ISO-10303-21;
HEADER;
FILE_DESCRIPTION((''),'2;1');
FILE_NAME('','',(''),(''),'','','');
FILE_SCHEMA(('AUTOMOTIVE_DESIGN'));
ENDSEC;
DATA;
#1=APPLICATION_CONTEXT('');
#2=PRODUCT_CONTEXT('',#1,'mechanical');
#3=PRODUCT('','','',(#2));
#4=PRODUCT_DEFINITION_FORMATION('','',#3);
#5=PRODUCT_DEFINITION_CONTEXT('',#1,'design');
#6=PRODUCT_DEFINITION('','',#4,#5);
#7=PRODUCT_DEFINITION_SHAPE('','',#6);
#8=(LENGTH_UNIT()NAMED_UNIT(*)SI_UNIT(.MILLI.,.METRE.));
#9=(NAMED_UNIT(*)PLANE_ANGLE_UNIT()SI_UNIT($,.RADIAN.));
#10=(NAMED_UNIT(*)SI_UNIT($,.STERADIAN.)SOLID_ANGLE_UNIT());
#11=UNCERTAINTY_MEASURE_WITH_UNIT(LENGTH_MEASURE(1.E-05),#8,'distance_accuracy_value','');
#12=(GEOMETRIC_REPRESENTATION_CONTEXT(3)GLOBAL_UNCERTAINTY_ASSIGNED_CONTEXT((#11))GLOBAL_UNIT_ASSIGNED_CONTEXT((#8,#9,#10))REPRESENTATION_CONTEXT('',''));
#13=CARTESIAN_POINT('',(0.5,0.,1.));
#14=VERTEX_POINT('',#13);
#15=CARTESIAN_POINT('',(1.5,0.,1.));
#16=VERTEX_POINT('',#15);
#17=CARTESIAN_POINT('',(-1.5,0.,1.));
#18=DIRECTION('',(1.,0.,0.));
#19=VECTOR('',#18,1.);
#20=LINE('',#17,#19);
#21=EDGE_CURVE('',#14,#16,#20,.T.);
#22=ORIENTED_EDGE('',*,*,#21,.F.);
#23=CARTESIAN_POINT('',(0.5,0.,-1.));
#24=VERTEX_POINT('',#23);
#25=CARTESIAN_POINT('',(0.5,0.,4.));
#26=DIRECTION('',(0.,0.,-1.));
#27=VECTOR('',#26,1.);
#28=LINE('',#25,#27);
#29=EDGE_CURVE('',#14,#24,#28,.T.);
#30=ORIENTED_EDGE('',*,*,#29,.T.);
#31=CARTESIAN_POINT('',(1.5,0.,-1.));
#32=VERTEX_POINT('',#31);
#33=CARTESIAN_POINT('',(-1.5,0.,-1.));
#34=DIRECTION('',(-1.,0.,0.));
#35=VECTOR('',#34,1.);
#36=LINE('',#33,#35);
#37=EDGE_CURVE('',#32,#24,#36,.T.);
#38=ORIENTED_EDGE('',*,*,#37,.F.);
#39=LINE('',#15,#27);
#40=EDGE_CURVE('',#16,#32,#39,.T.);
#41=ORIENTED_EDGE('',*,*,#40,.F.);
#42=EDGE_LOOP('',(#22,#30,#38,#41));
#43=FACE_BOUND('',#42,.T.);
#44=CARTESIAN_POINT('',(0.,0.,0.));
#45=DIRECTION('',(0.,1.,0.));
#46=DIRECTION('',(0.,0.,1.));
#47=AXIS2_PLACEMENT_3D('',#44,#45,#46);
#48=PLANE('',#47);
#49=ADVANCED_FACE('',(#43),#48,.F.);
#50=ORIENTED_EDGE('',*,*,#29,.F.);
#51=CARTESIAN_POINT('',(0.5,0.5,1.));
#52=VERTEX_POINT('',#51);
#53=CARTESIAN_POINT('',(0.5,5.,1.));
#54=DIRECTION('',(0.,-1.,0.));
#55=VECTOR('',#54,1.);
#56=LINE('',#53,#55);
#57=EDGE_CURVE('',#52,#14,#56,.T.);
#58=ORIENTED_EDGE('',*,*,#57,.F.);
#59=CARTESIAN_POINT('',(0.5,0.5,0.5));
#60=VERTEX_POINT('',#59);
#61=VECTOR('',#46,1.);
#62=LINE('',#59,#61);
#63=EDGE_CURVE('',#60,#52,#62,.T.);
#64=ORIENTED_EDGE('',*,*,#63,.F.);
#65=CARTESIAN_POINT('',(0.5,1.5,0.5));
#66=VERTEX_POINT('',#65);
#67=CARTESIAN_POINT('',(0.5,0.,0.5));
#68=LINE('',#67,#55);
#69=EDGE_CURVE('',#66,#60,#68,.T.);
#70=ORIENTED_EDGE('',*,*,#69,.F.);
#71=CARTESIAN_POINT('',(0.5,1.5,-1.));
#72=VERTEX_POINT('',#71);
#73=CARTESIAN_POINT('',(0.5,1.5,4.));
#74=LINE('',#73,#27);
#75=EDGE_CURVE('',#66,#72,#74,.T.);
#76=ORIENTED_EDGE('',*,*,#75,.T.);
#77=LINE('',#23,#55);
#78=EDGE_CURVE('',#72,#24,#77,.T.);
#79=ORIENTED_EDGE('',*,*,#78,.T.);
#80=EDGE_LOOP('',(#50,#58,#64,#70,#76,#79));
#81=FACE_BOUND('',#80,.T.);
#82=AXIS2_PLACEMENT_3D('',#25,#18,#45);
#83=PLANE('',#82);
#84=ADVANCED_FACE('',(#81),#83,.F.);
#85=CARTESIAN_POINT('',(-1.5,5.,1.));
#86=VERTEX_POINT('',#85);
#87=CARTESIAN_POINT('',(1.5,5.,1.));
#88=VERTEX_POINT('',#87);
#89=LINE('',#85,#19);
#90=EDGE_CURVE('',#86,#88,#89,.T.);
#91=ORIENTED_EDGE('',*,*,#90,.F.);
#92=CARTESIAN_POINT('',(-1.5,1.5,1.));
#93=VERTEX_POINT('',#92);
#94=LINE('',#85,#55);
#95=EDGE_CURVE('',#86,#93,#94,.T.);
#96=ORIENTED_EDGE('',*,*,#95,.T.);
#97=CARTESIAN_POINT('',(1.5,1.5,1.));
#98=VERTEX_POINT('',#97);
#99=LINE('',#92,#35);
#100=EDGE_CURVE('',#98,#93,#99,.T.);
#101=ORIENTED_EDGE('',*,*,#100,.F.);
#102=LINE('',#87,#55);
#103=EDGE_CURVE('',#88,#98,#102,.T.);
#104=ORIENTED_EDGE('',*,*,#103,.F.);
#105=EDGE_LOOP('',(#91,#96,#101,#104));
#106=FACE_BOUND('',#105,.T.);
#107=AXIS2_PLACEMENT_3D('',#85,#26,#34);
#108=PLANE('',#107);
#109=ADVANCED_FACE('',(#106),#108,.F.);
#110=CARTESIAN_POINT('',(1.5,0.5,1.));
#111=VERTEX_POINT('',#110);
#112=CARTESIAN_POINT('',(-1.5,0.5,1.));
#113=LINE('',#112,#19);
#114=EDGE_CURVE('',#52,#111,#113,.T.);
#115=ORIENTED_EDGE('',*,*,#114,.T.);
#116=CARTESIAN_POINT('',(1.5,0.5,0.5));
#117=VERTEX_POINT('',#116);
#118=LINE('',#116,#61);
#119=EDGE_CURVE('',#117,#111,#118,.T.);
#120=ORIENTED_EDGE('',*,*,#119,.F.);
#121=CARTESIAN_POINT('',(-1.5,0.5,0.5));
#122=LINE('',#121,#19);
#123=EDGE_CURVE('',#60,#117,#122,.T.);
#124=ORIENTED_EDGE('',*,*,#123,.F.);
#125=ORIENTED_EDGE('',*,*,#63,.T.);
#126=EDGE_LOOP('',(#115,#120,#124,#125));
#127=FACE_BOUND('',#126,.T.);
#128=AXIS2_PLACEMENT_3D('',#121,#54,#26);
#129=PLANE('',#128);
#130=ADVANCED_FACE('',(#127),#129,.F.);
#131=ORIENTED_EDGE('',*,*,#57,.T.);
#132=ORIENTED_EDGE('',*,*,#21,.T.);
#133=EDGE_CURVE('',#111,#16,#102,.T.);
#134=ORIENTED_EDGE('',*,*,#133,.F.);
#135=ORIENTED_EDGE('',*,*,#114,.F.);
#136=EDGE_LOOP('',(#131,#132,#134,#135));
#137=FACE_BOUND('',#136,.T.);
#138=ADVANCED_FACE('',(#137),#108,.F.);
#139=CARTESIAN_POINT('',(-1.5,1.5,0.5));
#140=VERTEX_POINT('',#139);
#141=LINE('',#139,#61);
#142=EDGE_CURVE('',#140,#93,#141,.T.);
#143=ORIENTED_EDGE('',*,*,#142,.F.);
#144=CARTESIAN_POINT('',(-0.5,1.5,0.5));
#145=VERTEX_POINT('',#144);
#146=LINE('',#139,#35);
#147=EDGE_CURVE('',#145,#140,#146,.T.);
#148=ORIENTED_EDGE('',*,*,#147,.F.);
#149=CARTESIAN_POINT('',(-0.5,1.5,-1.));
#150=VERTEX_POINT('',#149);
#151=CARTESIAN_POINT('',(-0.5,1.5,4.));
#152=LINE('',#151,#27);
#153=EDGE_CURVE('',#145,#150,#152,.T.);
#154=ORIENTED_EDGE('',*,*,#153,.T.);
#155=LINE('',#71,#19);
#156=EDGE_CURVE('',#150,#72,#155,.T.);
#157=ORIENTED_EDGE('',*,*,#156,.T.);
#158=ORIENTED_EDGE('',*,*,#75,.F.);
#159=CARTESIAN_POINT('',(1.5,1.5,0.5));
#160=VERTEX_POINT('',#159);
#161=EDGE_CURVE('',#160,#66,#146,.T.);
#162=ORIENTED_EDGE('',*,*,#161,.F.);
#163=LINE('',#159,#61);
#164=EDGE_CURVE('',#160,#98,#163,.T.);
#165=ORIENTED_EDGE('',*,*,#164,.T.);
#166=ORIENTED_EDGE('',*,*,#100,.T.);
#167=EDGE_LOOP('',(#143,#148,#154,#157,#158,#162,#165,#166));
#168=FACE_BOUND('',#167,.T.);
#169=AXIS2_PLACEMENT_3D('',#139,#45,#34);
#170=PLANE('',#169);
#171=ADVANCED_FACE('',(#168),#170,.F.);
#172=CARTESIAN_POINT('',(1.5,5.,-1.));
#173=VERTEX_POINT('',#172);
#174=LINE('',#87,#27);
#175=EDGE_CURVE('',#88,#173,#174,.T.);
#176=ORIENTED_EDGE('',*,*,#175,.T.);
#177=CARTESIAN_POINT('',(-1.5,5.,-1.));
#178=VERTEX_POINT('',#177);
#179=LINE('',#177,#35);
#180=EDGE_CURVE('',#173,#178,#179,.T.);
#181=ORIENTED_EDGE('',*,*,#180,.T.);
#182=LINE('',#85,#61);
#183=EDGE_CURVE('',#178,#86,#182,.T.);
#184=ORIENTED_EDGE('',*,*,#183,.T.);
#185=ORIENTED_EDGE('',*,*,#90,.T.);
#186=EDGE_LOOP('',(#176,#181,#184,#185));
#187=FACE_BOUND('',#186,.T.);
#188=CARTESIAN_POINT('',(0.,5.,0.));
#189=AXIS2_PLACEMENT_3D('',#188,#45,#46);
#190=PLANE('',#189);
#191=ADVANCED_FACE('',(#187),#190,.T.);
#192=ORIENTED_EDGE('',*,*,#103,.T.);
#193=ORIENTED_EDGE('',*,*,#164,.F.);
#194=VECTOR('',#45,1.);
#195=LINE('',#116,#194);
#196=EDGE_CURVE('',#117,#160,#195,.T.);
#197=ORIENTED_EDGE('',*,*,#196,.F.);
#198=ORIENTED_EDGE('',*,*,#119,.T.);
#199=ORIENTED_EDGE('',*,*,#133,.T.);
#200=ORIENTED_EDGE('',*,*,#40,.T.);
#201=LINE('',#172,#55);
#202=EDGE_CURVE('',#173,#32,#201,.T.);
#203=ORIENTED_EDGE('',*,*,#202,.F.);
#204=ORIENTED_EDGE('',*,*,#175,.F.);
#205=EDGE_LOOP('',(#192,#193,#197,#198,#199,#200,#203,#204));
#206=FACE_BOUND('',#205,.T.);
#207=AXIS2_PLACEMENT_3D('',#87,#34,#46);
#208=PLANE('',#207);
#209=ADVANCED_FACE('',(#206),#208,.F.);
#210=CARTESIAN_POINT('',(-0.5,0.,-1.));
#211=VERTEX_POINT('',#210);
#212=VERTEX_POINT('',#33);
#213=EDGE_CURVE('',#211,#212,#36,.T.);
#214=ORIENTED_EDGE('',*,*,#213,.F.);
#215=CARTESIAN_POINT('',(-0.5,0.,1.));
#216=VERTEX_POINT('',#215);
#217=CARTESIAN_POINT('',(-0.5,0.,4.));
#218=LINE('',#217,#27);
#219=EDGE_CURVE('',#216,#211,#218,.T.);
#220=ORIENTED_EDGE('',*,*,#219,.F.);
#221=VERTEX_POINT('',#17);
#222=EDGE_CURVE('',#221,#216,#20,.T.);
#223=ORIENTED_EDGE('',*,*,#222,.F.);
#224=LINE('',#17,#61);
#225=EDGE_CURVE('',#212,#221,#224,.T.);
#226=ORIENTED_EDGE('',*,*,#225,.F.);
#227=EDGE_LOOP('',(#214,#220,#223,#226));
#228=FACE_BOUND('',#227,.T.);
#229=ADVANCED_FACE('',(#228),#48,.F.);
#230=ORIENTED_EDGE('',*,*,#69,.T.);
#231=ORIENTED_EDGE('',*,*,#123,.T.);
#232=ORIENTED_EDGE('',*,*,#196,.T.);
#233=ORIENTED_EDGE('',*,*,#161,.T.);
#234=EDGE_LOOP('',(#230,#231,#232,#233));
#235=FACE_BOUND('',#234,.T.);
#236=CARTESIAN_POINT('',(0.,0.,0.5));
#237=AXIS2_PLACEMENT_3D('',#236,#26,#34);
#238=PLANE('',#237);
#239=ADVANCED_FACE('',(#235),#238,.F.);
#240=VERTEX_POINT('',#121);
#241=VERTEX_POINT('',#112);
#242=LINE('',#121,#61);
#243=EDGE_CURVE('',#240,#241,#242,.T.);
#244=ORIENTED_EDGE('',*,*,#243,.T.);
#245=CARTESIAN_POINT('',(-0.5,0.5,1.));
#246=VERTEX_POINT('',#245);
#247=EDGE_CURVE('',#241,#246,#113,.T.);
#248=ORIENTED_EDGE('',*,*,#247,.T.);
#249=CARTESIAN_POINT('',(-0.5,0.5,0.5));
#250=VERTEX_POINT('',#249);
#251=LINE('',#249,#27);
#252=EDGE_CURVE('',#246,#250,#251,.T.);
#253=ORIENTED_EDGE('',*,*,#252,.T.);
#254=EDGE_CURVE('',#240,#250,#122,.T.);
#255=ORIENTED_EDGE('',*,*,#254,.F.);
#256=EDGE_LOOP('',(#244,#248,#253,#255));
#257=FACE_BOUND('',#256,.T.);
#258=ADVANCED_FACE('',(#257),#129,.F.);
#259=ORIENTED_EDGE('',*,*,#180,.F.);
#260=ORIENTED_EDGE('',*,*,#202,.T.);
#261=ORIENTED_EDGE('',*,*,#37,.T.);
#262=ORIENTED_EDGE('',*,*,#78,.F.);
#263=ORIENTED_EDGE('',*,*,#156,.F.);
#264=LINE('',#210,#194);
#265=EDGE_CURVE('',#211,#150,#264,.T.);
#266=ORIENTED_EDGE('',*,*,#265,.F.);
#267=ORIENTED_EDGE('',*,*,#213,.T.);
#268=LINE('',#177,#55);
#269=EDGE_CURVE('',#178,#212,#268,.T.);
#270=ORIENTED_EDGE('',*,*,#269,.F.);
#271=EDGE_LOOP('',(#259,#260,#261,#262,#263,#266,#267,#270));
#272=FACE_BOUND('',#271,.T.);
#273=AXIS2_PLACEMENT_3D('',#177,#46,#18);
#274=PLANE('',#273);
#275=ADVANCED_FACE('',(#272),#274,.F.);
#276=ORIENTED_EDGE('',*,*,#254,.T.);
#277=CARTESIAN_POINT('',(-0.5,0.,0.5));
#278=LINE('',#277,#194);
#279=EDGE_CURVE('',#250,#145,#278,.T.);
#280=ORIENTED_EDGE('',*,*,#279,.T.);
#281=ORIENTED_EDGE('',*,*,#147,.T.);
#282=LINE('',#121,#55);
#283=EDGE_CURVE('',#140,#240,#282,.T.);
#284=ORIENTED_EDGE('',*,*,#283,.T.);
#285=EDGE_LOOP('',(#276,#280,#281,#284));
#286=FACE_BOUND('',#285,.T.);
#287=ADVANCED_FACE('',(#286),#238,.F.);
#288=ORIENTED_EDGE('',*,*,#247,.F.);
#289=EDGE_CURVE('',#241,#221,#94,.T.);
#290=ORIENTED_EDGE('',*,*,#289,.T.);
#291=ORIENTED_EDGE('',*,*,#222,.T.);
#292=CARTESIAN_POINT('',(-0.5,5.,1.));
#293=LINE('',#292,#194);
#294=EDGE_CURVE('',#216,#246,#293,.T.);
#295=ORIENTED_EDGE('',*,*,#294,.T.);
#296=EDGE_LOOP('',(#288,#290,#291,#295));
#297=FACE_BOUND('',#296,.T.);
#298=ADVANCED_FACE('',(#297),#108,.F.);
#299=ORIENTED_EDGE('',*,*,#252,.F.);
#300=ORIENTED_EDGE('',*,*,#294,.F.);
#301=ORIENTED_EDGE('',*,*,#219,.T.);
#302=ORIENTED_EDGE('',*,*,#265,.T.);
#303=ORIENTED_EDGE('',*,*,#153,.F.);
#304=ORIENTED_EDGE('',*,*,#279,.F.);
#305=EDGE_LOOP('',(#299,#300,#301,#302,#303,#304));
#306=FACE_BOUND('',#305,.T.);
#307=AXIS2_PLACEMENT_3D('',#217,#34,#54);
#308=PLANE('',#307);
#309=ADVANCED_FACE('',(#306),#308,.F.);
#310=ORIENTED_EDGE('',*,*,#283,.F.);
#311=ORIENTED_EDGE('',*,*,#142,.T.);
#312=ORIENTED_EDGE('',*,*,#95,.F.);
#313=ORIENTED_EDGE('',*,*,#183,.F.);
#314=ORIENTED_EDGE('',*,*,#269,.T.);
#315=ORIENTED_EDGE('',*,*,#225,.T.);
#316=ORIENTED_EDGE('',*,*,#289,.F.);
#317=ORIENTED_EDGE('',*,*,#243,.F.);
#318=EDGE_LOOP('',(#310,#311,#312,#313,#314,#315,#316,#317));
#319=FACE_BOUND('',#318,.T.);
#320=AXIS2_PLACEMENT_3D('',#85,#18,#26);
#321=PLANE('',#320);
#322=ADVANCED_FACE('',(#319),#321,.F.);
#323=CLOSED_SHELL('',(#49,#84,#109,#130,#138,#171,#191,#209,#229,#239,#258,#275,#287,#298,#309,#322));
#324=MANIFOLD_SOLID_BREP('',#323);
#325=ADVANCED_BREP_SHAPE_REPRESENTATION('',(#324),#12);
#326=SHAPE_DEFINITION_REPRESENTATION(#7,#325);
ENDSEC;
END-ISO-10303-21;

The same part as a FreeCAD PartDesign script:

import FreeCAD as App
import Part
import Sketcher

V = App.Vector

doc = App.newDocument("Part")
body = doc.addObject("PartDesign::Body", "Body")

sketch1 = doc.addObject("Sketcher::SketchObject", "Sketch")
body.addObject(sketch1)
sketch1.AttachmentSupport = (doc.XZ_Plane, [""])
sketch1.MapMode = "FlatFace"
sketch1.addGeometry([
    Part.LineSegment(V(-1.5, -1, 0), V(-1.5, 1, 0)),
    Part.LineSegment(V(-1.5, 1, 0), V(1.5, 1, 0)),
    Part.LineSegment(V(1.5, 1, 0), V(1.5, -1, 0)),
    Part.LineSegment(V(1.5, -1, 0), V(-1.5, -1, 0)),
], False)
sketch1.addConstraint([
    Sketcher.Constraint("Coincident", 0, 2, 1, 1),
    Sketcher.Constraint("Coincident", 1, 2, 2, 1),
    Sketcher.Constraint("Coincident", 2, 2, 3, 1),
    Sketcher.Constraint("Coincident", 3, 2, 0, 1),
    Sketcher.Constraint("Vertical", 0),
    Sketcher.Constraint("Horizontal", 1),
    Sketcher.Constraint("Vertical", 2),
    Sketcher.Constraint("Horizontal", 3),
    Sketcher.Constraint("Symmetric", 0, 2, 2, 2, -1, 1),
    Sketcher.Constraint("DistanceX", 1, 1, 1, 2, 3.0),
    Sketcher.Constraint("DistanceY", 0, 1, 0, 2, 2.0),
])
pad1 = doc.addObject("PartDesign::Pad", "Pad")
body.addObject(pad1)
pad1.Profile = sketch1
pad1.Length = 5
pad1.Reversed = True

sketch2 = doc.addObject("Sketcher::SketchObject", "Sketch001")
body.addObject(sketch2)
sketch2.AttachmentSupport = (doc.XY_Plane, [""])
sketch2.MapMode = "FlatFace"
sketch2.AttachmentOffset = App.Placement(V(0, 0, 1), App.Rotation())
sketch2.addGeometry([
    Part.LineSegment(V(-1.5, 1.5, 0), V(-1.5, 0.5, 0)),
    Part.LineSegment(V(-1.5, 0.5, 0), V(1.5, 0.5, 0)),
    Part.LineSegment(V(1.5, 0.5, 0), V(1.5, 1.5, 0)),
    Part.LineSegment(V(1.5, 1.5, 0), V(-1.5, 1.5, 0)),
], False)
sketch2.addConstraint([
    Sketcher.Constraint("Coincident", 0, 2, 1, 1),
    Sketcher.Constraint("Coincident", 1, 2, 2, 1),
    Sketcher.Constraint("Coincident", 2, 2, 3, 1),
    Sketcher.Constraint("Coincident", 3, 2, 0, 1),
    Sketcher.Constraint("Vertical", 0),
    Sketcher.Constraint("Horizontal", 1),
    Sketcher.Constraint("Vertical", 2),
    Sketcher.Constraint("Horizontal", 3),
    Sketcher.Constraint("DistanceX", 1, 1, 1, 2, 3.0),
    Sketcher.Constraint("DistanceY", 0, 2, 0, 1, 1.0),
    Sketcher.Constraint("DistanceX", 0, 2, -1, 1, 1.5),
    Sketcher.Constraint("DistanceY", -1, 1, 0, 2, 0.5),
])
pocket1 = doc.addObject("PartDesign::Pocket", "Pocket")
body.addObject(pocket1)
pocket1.Profile = sketch2
pocket1.Length = 0.5

sketch3 = doc.addObject("Sketcher::SketchObject", "Sketch002")
body.addObject(sketch3)
sketch3.AttachmentSupport = (doc.XY_Plane, [""])
sketch3.MapMode = "FlatFace"
sketch3.AttachmentOffset = App.Placement(V(0, 0, -1), App.Rotation())
sketch3.addGeometry([
    Part.LineSegment(V(0.5, 1.5, 0), V(0.5, 0, 0)),
    Part.LineSegment(V(0.5, 0, 0), V(-0.5, 0, 0)),
    Part.LineSegment(V(-0.5, 0, 0), V(-0.5, 1.5, 0)),
    Part.LineSegment(V(-0.5, 1.5, 0), V(0.5, 1.5, 0)),
], False)
sketch3.addConstraint([
    Sketcher.Constraint("Coincident", 0, 2, 1, 1),
    Sketcher.Constraint("Coincident", 1, 2, 2, 1),
    Sketcher.Constraint("Coincident", 2, 2, 3, 1),
    Sketcher.Constraint("Coincident", 3, 2, 0, 1),
    Sketcher.Constraint("Vertical", 0),
    Sketcher.Constraint("Horizontal", 1),
    Sketcher.Constraint("Vertical", 2),
    Sketcher.Constraint("Horizontal", 3),
    Sketcher.Constraint("Symmetric", 0, 2, 1, 2, -1, 1),
    Sketcher.Constraint("DistanceX", 1, 2, 1, 1, 1.0),
    Sketcher.Constraint("DistanceY", 0, 2, 0, 1, 1.5),
])
pocket2 = doc.addObject("PartDesign::Pocket", "Pocket001")
body.addObject(pocket2)
pocket2.Profile = sketch3
pocket2.Length = 5
pocket2.Reversed = True

doc.recompute()
